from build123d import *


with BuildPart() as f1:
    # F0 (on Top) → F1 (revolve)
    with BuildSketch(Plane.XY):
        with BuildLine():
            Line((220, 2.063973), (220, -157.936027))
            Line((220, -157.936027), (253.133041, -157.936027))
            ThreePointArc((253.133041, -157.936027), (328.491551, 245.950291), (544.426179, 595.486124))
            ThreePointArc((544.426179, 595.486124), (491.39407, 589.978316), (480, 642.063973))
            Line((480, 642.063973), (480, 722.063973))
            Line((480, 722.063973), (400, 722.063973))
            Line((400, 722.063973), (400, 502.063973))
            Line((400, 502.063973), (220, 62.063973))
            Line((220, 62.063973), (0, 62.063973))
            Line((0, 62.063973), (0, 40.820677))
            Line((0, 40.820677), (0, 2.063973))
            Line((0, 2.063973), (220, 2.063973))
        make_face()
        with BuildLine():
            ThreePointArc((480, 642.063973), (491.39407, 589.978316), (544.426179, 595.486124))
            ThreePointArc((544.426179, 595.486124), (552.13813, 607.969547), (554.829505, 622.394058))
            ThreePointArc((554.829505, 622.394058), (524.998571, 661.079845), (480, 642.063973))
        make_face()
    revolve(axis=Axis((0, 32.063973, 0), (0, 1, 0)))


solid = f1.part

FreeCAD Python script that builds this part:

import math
import FreeCAD as App
import Part
import Sketcher

V = App.Vector
Q = App.Units.Quantity

doc = App.newDocument("Part")
body = doc.addObject("PartDesign::Body", "Body")

# Sketch on XY plane
sketch1 = body.newObject("Sketcher::SketchObject", "Sketch")
sketch1.AttachmentSupport = (doc.getObject("XY_Plane"), [""])
sketch1.MapMode = "FlatFace"
sketch1.addGeometry(Part.LineSegment(V(220, 2, 0), V(220, -158, 0)), False)
sketch1.addGeometry(Part.LineSegment(V(220, -158, 0), V(253, -158, 0)), False)
sketch1.addGeometry(Part.ArcOfCircle(Part.Circle(V(1373, -158, 0), V(0, 0, 1), 1120), math.radians(138), math.radians(180)), False)
sketch1.addGeometry(Part.ArcOfCircle(Part.Circle(V(515, 622, 0), V(0, 0, 1), 40), math.radians(-42), math.radians(0)), False)
sketch1.addGeometry(Part.ArcOfCircle(Part.Circle(V(515, 622, 0), V(0, 0, 1), 40), math.radians(0), math.radians(151)), False)
sketch1.addGeometry(Part.LineSegment(V(480, 642, 0), V(480, 722, 0)), False)
sketch1.addGeometry(Part.LineSegment(V(480, 722, 0), V(400, 722, 0)), False)
sketch1.addGeometry(Part.LineSegment(V(400, 722, 0), V(400, 502, 0)), False)
sketch1.addGeometry(Part.LineSegment(V(400, 502, 0), V(220, 62, 0)), False)
sketch1.addGeometry(Part.LineSegment(V(220, 62, 0), V(0, 62, 0)), False)
sketch1.addGeometry(Part.LineSegment(V(0, 62, 0), V(0, 2, 0)), False)
sketch1.addGeometry(Part.LineSegment(V(0, 2, 0), V(220, 2, 0)), False)
sketch1.addConstraint(Sketcher.Constraint("Coincident", 0, 2, 1, 1))
sketch1.addConstraint(Sketcher.Constraint("Coincident", 1, 2, 2, 2))
sketch1.addConstraint(Sketcher.Constraint("Tangent", 2, 1, 3, 1))
sketch1.addConstraint(Sketcher.Constraint("Tangent", 3, 2, 4, 1))
sketch1.addConstraint(Sketcher.Constraint("Coincident", 4, 2, 5, 1))
sketch1.addConstraint(Sketcher.Constraint("Coincident", 5, 2, 6, 1))
sketch1.addConstraint(Sketcher.Constraint("Coincident", 6, 2, 7, 1))
sketch1.addConstraint(Sketcher.Constraint("Coincident", 7, 2, 8, 1))
sketch1.addConstraint(Sketcher.Constraint("Coincident", 8, 2, 9, 1))
sketch1.addConstraint(Sketcher.Constraint("Coincident", 9, 2, 10, 1))
sketch1.addConstraint(Sketcher.Constraint("Coincident", 10, 2, 11, 1))
sketch1.addConstraint(Sketcher.Constraint("Coincident", 11, 2, 0, 1))
sketch1.addConstraint(Sketcher.Constraint("Vertical", 0))
sketch1.addConstraint(Sketcher.Constraint("Horizontal", 1))
sketch1.addConstraint(Sketcher.Constraint("Vertical", 5))
sketch1.addConstraint(Sketcher.Constraint("Horizontal", 6))
sketch1.addConstraint(Sketcher.Constraint("Vertical", 7))
sketch1.addConstraint(Sketcher.Constraint("Horizontal", 9))
sketch1.addConstraint(Sketcher.Constraint("Vertical", 10))
sketch1.addConstraint(Sketcher.Constraint("Horizontal", 11))
sketch1.addConstraint(Sketcher.Constraint("Equal", 3, 4))
sketch1.addConstraint(Sketcher.Constraint("PointOnObject", 9, 2, -2))
sketch1.addConstraint(Sketcher.Constraint("Horizontal", 2, 3, 0, 2))
sketch1.addConstraint(Sketcher.Constraint("Horizontal", 4, 3, 3, 2))
sketch1.addConstraint(Sketcher.Constraint("Vertical", 0, 2, 8, 2))
sketch1.addConstraint(Sketcher.Constraint("Equal", 6, 5))
sketch1.addConstraint(Sketcher.Constraint("Equal", 11, 7))
sketch1.addConstraint(Sketcher.Constraint("Radius", 2, Q("1119.999999 mm")))
sketch1.addConstraint(Sketcher.Constraint("Radius", 3, Q("39.999999 mm")))
sketch1.addConstraint(Sketcher.Constraint("DistanceX", 6, 2, 6, 1, Q("80 mm")))
sketch1.addConstraint(Sketcher.Constraint("DistanceX", 9, 2, 9, 1, Q("220 mm")))
sketch1.addConstraint(Sketcher.Constraint("DistanceY", 0, 2, 0, 1, Q("160 mm")))
sketch1.addConstraint(Sketcher.Constraint("DistanceY", 10, 2, 10, 1, Q("60 mm")))
sketch1.addConstraint(Sketcher.Constraint("DistanceX", -1, 1, 4, 2, Q("480 mm")))
sketch1.addConstraint(Sketcher.Constraint("DistanceY", 1, 2, 4, 2, Q("800 mm")))
sketch1.addConstraint(Sketcher.Constraint("DistanceX", 1, 1, 1, 2, Q("33.133041 mm")))
sketch1.addConstraint(Sketcher.Constraint("DistanceY", -1, 1, 4, 3, Q("622.394058 mm")))
revolution = body.newObject("PartDesign::Revolution", "Revolution")
revolution.Profile = sketch1
revolution.ReferenceAxis = (sketch1, ["V_Axis"])
revolution.Angle = 360

doc.recompute()
